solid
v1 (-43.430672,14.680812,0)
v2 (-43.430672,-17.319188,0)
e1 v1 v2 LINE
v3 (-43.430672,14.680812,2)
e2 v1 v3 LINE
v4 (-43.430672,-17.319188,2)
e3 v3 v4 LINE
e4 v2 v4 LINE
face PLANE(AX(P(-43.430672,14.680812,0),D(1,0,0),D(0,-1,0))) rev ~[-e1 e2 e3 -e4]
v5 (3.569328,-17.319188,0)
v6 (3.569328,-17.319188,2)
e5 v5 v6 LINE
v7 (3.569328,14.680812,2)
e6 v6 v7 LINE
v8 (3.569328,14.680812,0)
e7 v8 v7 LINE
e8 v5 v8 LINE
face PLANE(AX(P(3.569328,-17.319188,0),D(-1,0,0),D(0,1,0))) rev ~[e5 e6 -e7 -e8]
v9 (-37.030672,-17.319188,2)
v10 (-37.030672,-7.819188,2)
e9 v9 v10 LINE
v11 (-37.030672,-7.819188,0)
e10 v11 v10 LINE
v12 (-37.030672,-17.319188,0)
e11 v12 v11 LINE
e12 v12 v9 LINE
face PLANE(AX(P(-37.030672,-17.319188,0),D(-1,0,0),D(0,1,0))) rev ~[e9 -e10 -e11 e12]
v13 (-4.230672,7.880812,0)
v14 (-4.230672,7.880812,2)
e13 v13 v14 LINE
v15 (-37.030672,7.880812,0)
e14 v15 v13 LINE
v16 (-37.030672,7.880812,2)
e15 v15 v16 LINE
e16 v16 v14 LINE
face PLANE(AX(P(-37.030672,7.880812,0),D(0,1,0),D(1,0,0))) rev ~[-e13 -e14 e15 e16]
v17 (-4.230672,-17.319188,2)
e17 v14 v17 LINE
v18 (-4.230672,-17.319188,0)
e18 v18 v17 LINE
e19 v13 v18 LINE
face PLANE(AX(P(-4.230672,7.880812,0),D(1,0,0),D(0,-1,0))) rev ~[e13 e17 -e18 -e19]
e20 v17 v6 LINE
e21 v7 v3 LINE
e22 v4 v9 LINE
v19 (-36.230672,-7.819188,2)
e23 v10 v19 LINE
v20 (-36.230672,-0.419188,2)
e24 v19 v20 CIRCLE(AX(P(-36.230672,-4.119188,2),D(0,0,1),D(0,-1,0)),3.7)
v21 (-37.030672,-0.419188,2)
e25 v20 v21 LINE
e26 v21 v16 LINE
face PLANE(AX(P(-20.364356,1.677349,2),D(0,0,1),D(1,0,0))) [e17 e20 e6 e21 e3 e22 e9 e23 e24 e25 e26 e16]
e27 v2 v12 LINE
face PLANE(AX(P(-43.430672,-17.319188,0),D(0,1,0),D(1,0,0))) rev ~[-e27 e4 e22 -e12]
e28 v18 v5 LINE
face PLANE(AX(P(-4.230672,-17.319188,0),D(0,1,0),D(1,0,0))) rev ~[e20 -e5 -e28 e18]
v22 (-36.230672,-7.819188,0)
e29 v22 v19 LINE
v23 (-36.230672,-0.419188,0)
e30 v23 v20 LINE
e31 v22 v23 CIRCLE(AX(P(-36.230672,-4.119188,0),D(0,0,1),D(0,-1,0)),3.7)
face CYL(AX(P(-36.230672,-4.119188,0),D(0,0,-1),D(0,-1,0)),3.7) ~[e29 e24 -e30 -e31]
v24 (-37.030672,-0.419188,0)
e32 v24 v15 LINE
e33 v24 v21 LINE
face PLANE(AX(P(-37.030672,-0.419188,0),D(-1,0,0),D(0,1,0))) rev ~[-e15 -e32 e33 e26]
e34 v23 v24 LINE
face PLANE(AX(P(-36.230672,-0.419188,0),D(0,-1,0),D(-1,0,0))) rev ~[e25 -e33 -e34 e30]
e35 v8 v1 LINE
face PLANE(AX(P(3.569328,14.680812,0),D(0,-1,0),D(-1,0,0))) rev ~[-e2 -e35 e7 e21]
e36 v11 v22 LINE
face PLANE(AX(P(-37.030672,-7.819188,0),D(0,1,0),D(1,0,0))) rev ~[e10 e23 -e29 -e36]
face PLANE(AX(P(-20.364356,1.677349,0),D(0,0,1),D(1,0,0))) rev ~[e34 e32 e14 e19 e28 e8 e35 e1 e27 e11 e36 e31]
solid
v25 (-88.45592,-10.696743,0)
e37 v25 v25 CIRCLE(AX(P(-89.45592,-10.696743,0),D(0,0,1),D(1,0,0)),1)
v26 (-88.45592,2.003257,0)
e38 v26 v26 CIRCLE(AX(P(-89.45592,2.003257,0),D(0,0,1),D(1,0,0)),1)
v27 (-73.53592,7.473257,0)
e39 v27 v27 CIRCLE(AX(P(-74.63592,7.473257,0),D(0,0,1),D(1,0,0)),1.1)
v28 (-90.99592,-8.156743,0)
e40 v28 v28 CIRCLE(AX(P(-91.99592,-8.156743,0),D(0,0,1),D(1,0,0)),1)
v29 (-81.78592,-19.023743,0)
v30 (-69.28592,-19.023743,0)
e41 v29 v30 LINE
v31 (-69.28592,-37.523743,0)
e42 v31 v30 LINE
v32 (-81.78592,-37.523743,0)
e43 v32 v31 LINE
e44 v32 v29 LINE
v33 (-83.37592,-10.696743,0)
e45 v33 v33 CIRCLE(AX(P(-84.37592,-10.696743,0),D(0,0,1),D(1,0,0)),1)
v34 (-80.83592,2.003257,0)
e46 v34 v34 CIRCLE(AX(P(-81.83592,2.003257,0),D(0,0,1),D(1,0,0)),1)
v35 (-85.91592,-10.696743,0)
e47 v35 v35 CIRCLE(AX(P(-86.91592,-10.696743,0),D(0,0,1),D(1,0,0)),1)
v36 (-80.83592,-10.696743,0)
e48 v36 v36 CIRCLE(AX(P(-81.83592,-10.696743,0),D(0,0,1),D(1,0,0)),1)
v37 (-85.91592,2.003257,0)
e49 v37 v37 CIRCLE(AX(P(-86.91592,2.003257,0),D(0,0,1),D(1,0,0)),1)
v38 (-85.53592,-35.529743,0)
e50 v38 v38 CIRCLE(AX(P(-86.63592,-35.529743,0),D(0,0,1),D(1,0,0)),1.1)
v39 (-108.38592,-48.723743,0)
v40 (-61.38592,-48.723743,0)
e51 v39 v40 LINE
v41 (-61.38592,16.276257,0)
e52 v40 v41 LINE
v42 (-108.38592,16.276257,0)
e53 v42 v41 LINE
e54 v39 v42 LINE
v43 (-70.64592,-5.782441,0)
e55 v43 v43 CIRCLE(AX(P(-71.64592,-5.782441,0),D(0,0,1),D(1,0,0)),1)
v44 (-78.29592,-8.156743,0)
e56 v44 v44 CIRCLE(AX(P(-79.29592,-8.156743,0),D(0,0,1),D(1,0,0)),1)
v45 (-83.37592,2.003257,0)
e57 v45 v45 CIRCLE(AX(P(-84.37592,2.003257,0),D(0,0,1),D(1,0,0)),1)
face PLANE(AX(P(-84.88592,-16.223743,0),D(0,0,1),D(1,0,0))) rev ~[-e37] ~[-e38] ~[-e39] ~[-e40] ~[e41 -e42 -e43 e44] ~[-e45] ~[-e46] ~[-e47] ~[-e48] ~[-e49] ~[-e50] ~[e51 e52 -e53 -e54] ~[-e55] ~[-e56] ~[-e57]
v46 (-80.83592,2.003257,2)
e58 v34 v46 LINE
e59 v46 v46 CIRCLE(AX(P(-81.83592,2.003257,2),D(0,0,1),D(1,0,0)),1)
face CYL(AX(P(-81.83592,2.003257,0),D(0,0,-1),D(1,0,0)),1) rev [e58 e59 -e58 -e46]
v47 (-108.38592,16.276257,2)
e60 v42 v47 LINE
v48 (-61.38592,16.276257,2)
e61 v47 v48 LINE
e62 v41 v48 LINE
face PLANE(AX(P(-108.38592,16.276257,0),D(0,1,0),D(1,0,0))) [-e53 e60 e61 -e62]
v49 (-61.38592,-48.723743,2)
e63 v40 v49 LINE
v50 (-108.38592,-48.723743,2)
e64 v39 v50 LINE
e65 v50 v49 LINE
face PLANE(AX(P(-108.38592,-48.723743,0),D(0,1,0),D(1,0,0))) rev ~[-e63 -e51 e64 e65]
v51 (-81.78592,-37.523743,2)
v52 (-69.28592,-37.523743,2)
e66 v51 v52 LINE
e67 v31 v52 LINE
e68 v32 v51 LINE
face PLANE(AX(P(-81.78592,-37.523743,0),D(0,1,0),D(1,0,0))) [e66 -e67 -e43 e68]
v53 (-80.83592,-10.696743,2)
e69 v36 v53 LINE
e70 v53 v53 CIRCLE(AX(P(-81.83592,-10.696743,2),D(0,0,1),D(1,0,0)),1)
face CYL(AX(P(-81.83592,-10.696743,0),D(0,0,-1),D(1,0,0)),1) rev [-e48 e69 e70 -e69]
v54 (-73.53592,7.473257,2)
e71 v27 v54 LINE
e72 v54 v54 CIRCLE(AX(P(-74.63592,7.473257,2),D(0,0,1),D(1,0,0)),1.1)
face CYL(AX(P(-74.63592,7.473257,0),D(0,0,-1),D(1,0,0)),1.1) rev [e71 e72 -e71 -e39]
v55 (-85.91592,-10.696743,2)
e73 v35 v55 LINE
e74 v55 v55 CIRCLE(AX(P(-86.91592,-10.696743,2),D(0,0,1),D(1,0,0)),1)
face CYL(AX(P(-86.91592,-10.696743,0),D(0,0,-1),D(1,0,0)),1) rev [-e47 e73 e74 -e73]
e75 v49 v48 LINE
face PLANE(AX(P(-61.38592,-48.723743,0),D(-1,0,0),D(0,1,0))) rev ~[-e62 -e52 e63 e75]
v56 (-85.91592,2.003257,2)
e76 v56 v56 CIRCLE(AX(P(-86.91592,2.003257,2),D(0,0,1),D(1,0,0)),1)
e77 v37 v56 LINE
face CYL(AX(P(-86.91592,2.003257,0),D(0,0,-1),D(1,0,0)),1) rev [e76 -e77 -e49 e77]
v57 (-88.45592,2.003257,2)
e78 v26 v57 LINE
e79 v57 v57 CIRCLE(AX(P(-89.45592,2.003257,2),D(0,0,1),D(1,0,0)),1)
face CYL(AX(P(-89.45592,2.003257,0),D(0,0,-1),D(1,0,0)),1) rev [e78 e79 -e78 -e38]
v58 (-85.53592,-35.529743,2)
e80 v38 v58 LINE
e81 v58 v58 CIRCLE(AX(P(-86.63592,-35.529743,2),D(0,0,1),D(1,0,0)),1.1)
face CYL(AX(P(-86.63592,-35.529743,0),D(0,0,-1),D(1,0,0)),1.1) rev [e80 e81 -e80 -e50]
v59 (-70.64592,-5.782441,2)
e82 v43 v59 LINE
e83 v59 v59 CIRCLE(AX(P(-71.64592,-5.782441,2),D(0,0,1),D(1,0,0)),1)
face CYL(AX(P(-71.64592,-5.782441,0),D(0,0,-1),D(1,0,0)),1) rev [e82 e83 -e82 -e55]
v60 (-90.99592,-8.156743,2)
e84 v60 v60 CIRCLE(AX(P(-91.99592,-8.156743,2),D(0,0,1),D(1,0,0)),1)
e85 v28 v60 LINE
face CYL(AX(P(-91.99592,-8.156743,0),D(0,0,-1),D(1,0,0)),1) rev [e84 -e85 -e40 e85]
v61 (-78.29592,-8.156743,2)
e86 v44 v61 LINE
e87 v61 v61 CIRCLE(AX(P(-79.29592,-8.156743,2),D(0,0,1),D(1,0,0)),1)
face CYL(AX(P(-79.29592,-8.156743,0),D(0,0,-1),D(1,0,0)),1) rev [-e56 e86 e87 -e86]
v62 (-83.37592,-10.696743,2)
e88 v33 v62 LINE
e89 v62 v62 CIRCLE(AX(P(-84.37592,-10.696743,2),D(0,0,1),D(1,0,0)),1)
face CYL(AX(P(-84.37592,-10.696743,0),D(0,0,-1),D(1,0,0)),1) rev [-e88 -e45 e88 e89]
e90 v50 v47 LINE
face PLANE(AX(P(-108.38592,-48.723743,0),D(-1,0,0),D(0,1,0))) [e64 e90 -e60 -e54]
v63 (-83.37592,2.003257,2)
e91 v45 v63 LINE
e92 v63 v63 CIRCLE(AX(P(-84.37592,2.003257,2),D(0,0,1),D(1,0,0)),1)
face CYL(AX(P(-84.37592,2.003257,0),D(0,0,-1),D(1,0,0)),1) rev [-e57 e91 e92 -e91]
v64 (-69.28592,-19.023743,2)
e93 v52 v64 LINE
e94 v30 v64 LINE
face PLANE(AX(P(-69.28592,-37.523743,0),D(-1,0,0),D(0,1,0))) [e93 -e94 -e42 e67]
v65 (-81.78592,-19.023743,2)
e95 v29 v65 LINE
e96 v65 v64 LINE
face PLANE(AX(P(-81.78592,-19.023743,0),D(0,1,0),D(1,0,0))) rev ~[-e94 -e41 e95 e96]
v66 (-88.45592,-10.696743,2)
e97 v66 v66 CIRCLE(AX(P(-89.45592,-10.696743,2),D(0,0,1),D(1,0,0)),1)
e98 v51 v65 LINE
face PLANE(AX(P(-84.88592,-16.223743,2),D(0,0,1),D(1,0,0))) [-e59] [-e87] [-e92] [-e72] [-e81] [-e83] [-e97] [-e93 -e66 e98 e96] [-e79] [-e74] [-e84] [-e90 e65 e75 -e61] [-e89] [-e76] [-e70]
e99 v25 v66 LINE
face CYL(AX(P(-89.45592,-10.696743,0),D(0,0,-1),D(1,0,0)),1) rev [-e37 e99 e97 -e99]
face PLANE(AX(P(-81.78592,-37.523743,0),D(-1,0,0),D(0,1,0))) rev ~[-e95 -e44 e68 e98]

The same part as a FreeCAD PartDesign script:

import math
import FreeCAD as App
import Part
import Sketcher

doc = App.newDocument("Part")
body = doc.addObject("PartDesign::Body", "Body")

sketch1 = body.newObject("Sketcher::SketchObject", "Sketch")
sketch1.AttachmentSupport = (doc.getObject("XY_Plane"), [""])
sketch1.MapMode = "FlatFace"
sketch1.addGeometry(Part.LineSegment(App.Vector(-108.4, 16.3, 0), App.Vector(-108.4, -48.7, 0)), False)
sketch1.addGeometry(Part.LineSegment(App.Vector(-108.4, -48.7, 0), App.Vector(-61.4, -48.7, 0)), False)
sketch1.addGeometry(Part.LineSegment(App.Vector(-61.4, -48.7, 0), App.Vector(-61.4, 16.3, 0)), False)
sketch1.addGeometry(Part.LineSegment(App.Vector(-61.4, 16.3, 0), App.Vector(-108.4, 16.3, 0)), False)
sketch1.addGeometry(Part.Circle(App.Vector(-86.6, -35.5, 0), App.Vector(0, 0, 1), 1.1), False)
sketch1.addGeometry(Part.LineSegment(App.Vector(-69.3, -37.5, 0), App.Vector(-81.8, -37.5, 0)), False)
sketch1.addGeometry(Part.LineSegment(App.Vector(-81.8, -37.5, 0), App.Vector(-81.8, -19, 0)), False)
sketch1.addGeometry(Part.LineSegment(App.Vector(-81.8, -19, 0), App.Vector(-69.3, -19, 0)), False)
sketch1.addGeometry(Part.LineSegment(App.Vector(-69.3, -19, 0), App.Vector(-69.3, -37.5, 0)), False)
sketch1.addGeometry(Part.Circle(App.Vector(-89.5, -10.7, 0), App.Vector(0, 0, 1), 1), False)
sketch1.addGeometry(Part.Circle(App.Vector(-92, -8.2, 0), App.Vector(0, 0, 1), 1), False)
sketch1.addGeometry(Part.Circle(App.Vector(-86.9, -10.7, 0), App.Vector(0, 0, 1), 1), False)
sketch1.addGeometry(Part.Circle(App.Vector(-84.4, -10.7, 0), App.Vector(0, 0, 1), 1), False)
sketch1.addGeometry(Part.Circle(App.Vector(-81.8, -10.7, 0), App.Vector(0, 0, 1), 1), False)
sketch1.addGeometry(Part.Circle(App.Vector(-89.5, 2, 0), App.Vector(0, 0, 1), 1), False)
sketch1.addGeometry(Part.Circle(App.Vector(-86.9, 2, 0), App.Vector(0, 0, 1), 1), False)
sketch1.addGeometry(Part.Circle(App.Vector(-84.4, 2, 0), App.Vector(0, 0, 1), 1), False)
sketch1.addGeometry(Part.Circle(App.Vector(-81.8, 2, 0), App.Vector(0, 0, 1), 1), False)
sketch1.addGeometry(Part.Circle(App.Vector(-79.3, -8.2, 0), App.Vector(0, 0, 1), 1), False)
sketch1.addGeometry(Part.Circle(App.Vector(-71.6, -5.8, 0), App.Vector(0, 0, 1), 1), False)
sketch1.addGeometry(Part.Circle(App.Vector(-74.6, 7.5, 0), App.Vector(0, 0, 1), 1.1), False)
sketch1.addConstraint(Sketcher.Constraint("Coincident", 0, 2, 1, 1))
sketch1.addConstraint(Sketcher.Constraint("Coincident", 1, 2, 2, 1))
sketch1.addConstraint(Sketcher.Constraint("Coincident", 2, 2, 3, 1))
sketch1.addConstraint(Sketcher.Constraint("Coincident", 3, 2, 0, 1))
sketch1.addConstraint(Sketcher.Constraint("Coincident", 5, 2, 6, 1))
sketch1.addConstraint(Sketcher.Constraint("Coincident", 6, 2, 7, 1))
sketch1.addConstraint(Sketcher.Constraint("Coincident", 7, 2, 8, 1))
sketch1.addConstraint(Sketcher.Constraint("Coincident", 8, 2, 5, 1))
sketch1.addConstraint(Sketcher.Constraint("Vertical", 0))
sketch1.addConstraint(Sketcher.Constraint("Horizontal", 1))
sketch1.addConstraint(Sketcher.Constraint("Vertical", 2))
sketch1.addConstraint(Sketcher.Constraint("Horizontal", 3))
sketch1.addConstraint(Sketcher.Constraint("Horizontal", 5))
sketch1.addConstraint(Sketcher.Constraint("Vertical", 6))
sketch1.addConstraint(Sketcher.Constraint("Horizontal", 7))
sketch1.addConstraint(Sketcher.Constraint("Vertical", 8))
sketch1.addConstraint(Sketcher.Constraint("Equal", 9, 10))
sketch1.addConstraint(Sketcher.Constraint("Equal", 10, 11))
sketch1.addConstraint(Sketcher.Constraint("Equal", 11, 12))
sketch1.addConstraint(Sketcher.Constraint("Equal", 12, 13))
sketch1.addConstraint(Sketcher.Constraint("Equal", 13, 14))
sketch1.addConstraint(Sketcher.Constraint("Equal", 14, 15))
sketch1.addConstraint(Sketcher.Constraint("Equal", 15, 16))
sketch1.addConstraint(Sketcher.Constraint("Equal", 16, 17))
sketch1.addConstraint(Sketcher.Constraint("Equal", 17, 18))
sketch1.addConstraint(Sketcher.Constraint("Equal", 18, 19))
sketch1.addConstraint(Sketcher.Constraint("Equal", 4, 20))
sketch1.addConstraint(Sketcher.Constraint("Horizontal", 9, 3, 11, 3))
sketch1.addConstraint(Sketcher.Constraint("Horizontal", 11, 3, 12, 3))
sketch1.addConstraint(Sketcher.Constraint("Horizontal", 12, 3, 13, 3))
sketch1.addConstraint(Sketcher.Constraint("Horizontal", 14, 3, 15, 3))
sketch1.addConstraint(Sketcher.Constraint("Horizontal", 15, 3, 16, 3))
sketch1.addConstraint(Sketcher.Constraint("Horizontal", 16, 3, 17, 3))
sketch1.addConstraint(Sketcher.Constraint("Horizontal", 10, 3, 18, 3))
sketch1.addConstraint(Sketcher.Constraint("Vertical", 9, 3, 14, 3))
sketch1.addConstraint(Sketcher.Constraint("Vertical", 11, 3, 15, 3))
sketch1.addConstraint(Sketcher.Constraint("Vertical", 12, 3, 16, 3))
sketch1.addConstraint(Sketcher.Constraint("Vertical", 13, 3, 17, 3))
sketch1.addConstraint(Sketcher.Constraint("Diameter", 9, 2.0))
sketch1.addConstraint(Sketcher.Constraint("Diameter", 4, 2.2))
sketch1.addConstraint(Sketcher.Constraint("DistanceX", 1, 1, 1, 2, 47.0))
sketch1.addConstraint(Sketcher.Constraint("DistanceY", 0, 2, 0, 1, 65.0))
sketch1.addConstraint(Sketcher.Constraint("DistanceX", 5, 2, 5, 1, 12.5))
sketch1.addConstraint(Sketcher.Constraint("DistanceY", 6, 1, 6, 2, 18.5))
sketch1.addConstraint(Sketcher.Constraint("DistanceX", 4, 3, 13, 3, 4.8))
sketch1.addConstraint(Sketcher.Constraint("DistanceY", 9, 3, 14, 3, 12.7))
sketch1.addConstraint(Sketcher.Constraint("DistanceX", 17, 3, 20, 3, 7.2))
sketch1.addConstraint(Sketcher.Constraint("DistanceX", 5, 2, 1, 2, 20.4))
sketch1.addConstraint(Sketcher.Constraint("DistanceY", 1, 2, 5, 2, 11.2))
sketch1.addConstraint(Sketcher.Constraint("DistanceX", 9, 3, 4, 3, 2.82))
sketch1.addConstraint(Sketcher.Constraint("DistanceX", 10, 3, 9, 3, 2.54))
sketch1.addConstraint(Sketcher.Constraint("DistanceY", 9, 3, 10, 3, 2.54))
sketch1.addConstraint(Sketcher.Constraint("DistanceX", 9, 3, 11, 3, 2.54))
sketch1.addConstraint(Sketcher.Constraint("DistanceX", 11, 3, 12, 3, 2.54))
sketch1.addConstraint(Sketcher.Constraint("DistanceX", 13, 3, 18, 3, 2.54))
sketch1.addConstraint(Sketcher.Constraint("DistanceX", 18, 3, 19, 3, 7.65))
sketch1.addConstraint(Sketcher.Constraint("DistanceY", 17, 3, 20, 3, 5.47))
sketch1.addConstraint(Sketcher.Constraint("DistanceX", 0, 2, 4, 3, 21.75))
sketch1.addConstraint(Sketcher.Constraint("DistanceY", 4, 3, 9, 3, 24.833))
sketch1.addConstraint(Sketcher.Constraint("DistanceY", 0, 2, 4, 3, 13.194))
sketch1.addConstraint(Sketcher.Constraint("DistanceY", 13, 3, 19, 3, 4.914302))
sketch1.addConstraint(Sketcher.Constraint("DistanceX", 4, 3, -1, 1, 86.63592))
sketch1.addConstraint(Sketcher.Constraint("DistanceY", 19, 3, -1, 1, 5.782441))
pad1 = body.newObject("PartDesign::Pad", "Pad")
pad1.Profile = sketch1
pad1.Length = 2
body2 = doc.addObject("PartDesign::Body", "Body001")

sketch2 = body2.newObject("Sketcher::SketchObject", "Sketch001")
sketch2.AttachmentSupport = (doc.getObject("XY_Plane001"), [""])
sketch2.MapMode = "FlatFace"
sketch2.addGeometry(Part.LineSegment(App.Vector(-43.4, 14.7, 0), App.Vector(-43.4, -17.3, 0)), False)
sketch2.addGeometry(Part.LineSegment(App.Vector(-43.4, -17.3, 0), App.Vector(-37, -17.3, 0)), False)
sketch2.addGeometry(Part.LineSegment(App.Vector(-37, -17.3, 0), App.Vector(-37, -7.8, 0)), False)
sketch2.addGeometry(Part.LineSegment(App.Vector(-37, -7.8, 0), App.Vector(-36.2, -7.8, 0)), False)
sketch2.addGeometry(Part.ArcOfCircle(Part.Circle(App.Vector(-36.2, -4.1, 0), App.Vector(0, 0, 1), 3.7), math.radians(-90), math.radians(90)), False)
sketch2.addGeometry(Part.LineSegment(App.Vector(-36.2, -0.4, 0), App.Vector(-37, -0.4, 0)), False)
sketch2.addGeometry(Part.LineSegment(App.Vector(-37, -0.4, 0), App.Vector(-37, 7.9, 0)), False)
sketch2.addGeometry(Part.LineSegment(App.Vector(-37, 7.9, 0), App.Vector(-4.2, 7.9, 0)), False)
sketch2.addGeometry(Part.LineSegment(App.Vector(-4.2, 7.9, 0), App.Vector(-4.2, -17.3, 0)), False)
sketch2.addGeometry(Part.LineSegment(App.Vector(-4.2, -17.3, 0), App.Vector(3.6, -17.3, 0)), False)
sketch2.addGeometry(Part.LineSegment(App.Vector(3.6, -17.3, 0), App.Vector(3.6, 14.7, 0)), False)
sketch2.addGeometry(Part.LineSegment(App.Vector(3.6, 14.7, 0), App.Vector(-43.4, 14.7, 0)), False)
sketch2.addConstraint(Sketcher.Constraint("Coincident", 0, 2, 1, 1))
sketch2.addConstraint(Sketcher.Constraint("Coincident", 1, 2, 2, 1))
sketch2.addConstraint(Sketcher.Constraint("Coincident", 2, 2, 3, 1))
sketch2.addConstraint(Sketcher.Constraint("Tangent", 3, 2, 4, 1))
sketch2.addConstraint(Sketcher.Constraint("Tangent", 4, 2, 5, 1))
sketch2.addConstraint(Sketcher.Constraint("Coincident", 5, 2, 6, 1))
sketch2.addConstraint(Sketcher.Constraint("Coincident", 6, 2, 7, 1))
sketch2.addConstraint(Sketcher.Constraint("Coincident", 7, 2, 8, 1))
sketch2.addConstraint(Sketcher.Constraint("Coincident", 8, 2, 9, 1))
sketch2.addConstraint(Sketcher.Constraint("Coincident", 9, 2, 10, 1))
sketch2.addConstraint(Sketcher.Constraint("Coincident", 10, 2, 11, 1))
sketch2.addConstraint(Sketcher.Constraint("Coincident", 11, 2, 0, 1))
sketch2.addConstraint(Sketcher.Constraint("Vertical", 0))
sketch2.addConstraint(Sketcher.Constraint("Horizontal", 1))
sketch2.addConstraint(Sketcher.Constraint("Vertical", 2))
sketch2.addConstraint(Sketcher.Constraint("Horizontal", 3))
sketch2.addConstraint(Sketcher.Constraint("Horizontal", 5))
sketch2.addConstraint(Sketcher.Constraint("Vertical", 6))
sketch2.addConstraint(Sketcher.Constraint("Horizontal", 7))
sketch2.addConstraint(Sketcher.Constraint("Vertical", 8))
sketch2.addConstraint(Sketcher.Constraint("Horizontal", 9))
sketch2.addConstraint(Sketcher.Constraint("Vertical", 10))
sketch2.addConstraint(Sketcher.Constraint("Horizontal", 11))
sketch2.addConstraint(Sketcher.Constraint("Horizontal", 1, 2, 8, 2))
sketch2.addConstraint(Sketcher.Constraint("Vertical", 2, 2, 5, 2))
sketch2.addConstraint(Sketcher.Constraint("Radius", 4, 3.7))
sketch2.addConstraint(Sketcher.Constraint("DistanceX", 11, 2, 11, 1, 47.0))
sketch2.addConstraint(Sketcher.Constraint("DistanceY", 0, 2, 0, 1, 32.0))
sketch2.addConstraint(Sketcher.Constraint("DistanceX", 1, 1, 1, 2, 6.4))
sketch2.addConstraint(Sketcher.Constraint("DistanceX", 3, 1, 3, 2, 0.8))
sketch2.addConstraint(Sketcher.Constraint("DistanceX", 7, 1, 7, 2, 32.8))
sketch2.addConstraint(Sketcher.Constraint("DistanceY", 2, 1, 2, 2, 9.5))
sketch2.addConstraint(Sketcher.Constraint("DistanceY", 6, 1, 6, 2, 8.3))
sketch2.addConstraint(Sketcher.Constraint("DistanceX", 4, 3, -1, 1, 36.230672))
sketch2.addConstraint(Sketcher.Constraint("DistanceY", 4, 3, -1, 1, 4.119188))
pad2 = body2.newObject("PartDesign::Pad", "Pad001")
pad2.Profile = sketch2
pad2.Length = 2

doc.recompute()
